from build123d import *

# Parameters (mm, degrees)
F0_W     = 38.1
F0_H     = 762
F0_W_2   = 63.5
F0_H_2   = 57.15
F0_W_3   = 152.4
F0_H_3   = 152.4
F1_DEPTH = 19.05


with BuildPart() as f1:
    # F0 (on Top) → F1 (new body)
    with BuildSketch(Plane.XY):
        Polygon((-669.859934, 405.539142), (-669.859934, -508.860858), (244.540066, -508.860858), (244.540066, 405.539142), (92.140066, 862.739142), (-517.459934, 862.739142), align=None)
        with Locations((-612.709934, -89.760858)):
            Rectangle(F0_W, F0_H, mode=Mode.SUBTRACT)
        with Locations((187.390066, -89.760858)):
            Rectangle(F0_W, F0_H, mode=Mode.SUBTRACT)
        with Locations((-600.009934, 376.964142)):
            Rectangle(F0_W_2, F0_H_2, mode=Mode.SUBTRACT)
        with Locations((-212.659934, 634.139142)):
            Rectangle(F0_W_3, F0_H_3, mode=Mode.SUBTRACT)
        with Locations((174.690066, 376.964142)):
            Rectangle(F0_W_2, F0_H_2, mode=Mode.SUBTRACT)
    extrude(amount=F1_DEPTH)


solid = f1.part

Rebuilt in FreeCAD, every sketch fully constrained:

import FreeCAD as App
import Part
import Sketcher
Q = App.Units.Quantity


def add_polygon(sketch, points):
    """Adds a closed chain of lines whose ends are joined by coincident constraints."""
    first, n = sketch.GeometryCount, len(points)
    for a, b in zip(points, points[1:] + points[:1]):
        sketch.addGeometry(Part.LineSegment(App.Vector(*a, 0), App.Vector(*b, 0)), False)
    for i in range(n):
        sketch.addConstraint(Sketcher.Constraint("Coincident", first + i, 2, first + (i + 1) % n, 1))

doc = App.newDocument("Part")
body = doc.addObject("PartDesign::Body", "Body")

sketch1 = doc.addObject("Sketcher::SketchObject", "Sketch")
body.addObject(sketch1)
sketch1.AttachmentSupport = (doc.XY_Plane, [""])
sketch1.MapMode = "FlatFace"
add_polygon(sketch1, [(-670, 406), (-670, -509), (245, -509), (245, 406), (92, 863), (-517, 863)])
add_polygon(sketch1, [(-594, -471), (-632, -471), (-632, 291), (-594, 291)])
add_polygon(sketch1, [(206, -471), (168, -471), (168, 291), (206, 291)])
add_polygon(sketch1, [(-568, 348), (-632, 348), (-632, 406), (-568, 406)])
add_polygon(sketch1, [(206, 348), (143, 348), (143, 406), (206, 406)])
add_polygon(sketch1, [(-136, 558), (-289, 558), (-289, 710), (-136, 710)])
sketch1.addConstraint([
    Sketcher.Constraint("Vertical", 0),
    Sketcher.Constraint("Horizontal", 1),
    Sketcher.Constraint("Vertical", 2),
    Sketcher.Constraint("Horizontal", 4),
    Sketcher.Constraint("Horizontal", 6),
    Sketcher.Constraint("Vertical", 7),
    Sketcher.Constraint("Horizontal", 8),
    Sketcher.Constraint("Vertical", 9),
    Sketcher.Constraint("Horizontal", 10),
    Sketcher.Constraint("Vertical", 11),
    Sketcher.Constraint("Horizontal", 12),
    Sketcher.Constraint("Vertical", 13),
    Sketcher.Constraint("Horizontal", 14),
    Sketcher.Constraint("Vertical", 15),
    Sketcher.Constraint("Horizontal", 16),
    Sketcher.Constraint("Vertical", 17),
    Sketcher.Constraint("Horizontal", 18),
    Sketcher.Constraint("Vertical", 19),
    Sketcher.Constraint("Horizontal", 20),
    Sketcher.Constraint("Vertical", 21),
    Sketcher.Constraint("Horizontal", 22),
    Sketcher.Constraint("Vertical", 23),
    Sketcher.Constraint("Horizontal", 24),
    Sketcher.Constraint("Vertical", 25),
    Sketcher.Constraint("Horizontal", 2, 2, 5, 2),
    Sketcher.Constraint("Horizontal", 9, 2, 10, 2),
    Sketcher.Constraint("Horizontal", 8, 2, 11, 2),
    Sketcher.Constraint("Horizontal", 5, 2, 15, 2),
    Sketcher.Constraint("Horizontal", 17, 2, 18, 2),
    Sketcher.Constraint("Horizontal", 16, 2, 19, 2),
    Sketcher.Constraint("Vertical", 7, 2, 14, 2),
    Sketcher.Constraint("Vertical", 13, 2, 20, 2),
    Sketcher.Constraint("Equal", 8, 10),
    Sketcher.Constraint("Equal", 16, 18),
    Sketcher.Constraint("Equal", 1, 0),
    Sketcher.Constraint("Equal", 24, 23),
    Sketcher.Constraint("Equal", 3, 5),
    Sketcher.Constraint("DistanceX", 1, 1, 1, 2, Q("36 in")),
    Sketcher.Constraint("DistanceX", 4, 2, 4, 1, Q("24 in")),
    Sketcher.Constraint("DistanceX", 22, 2, 22, 1, Q("6 in")),
    Sketcher.Constraint("DistanceY", 7, 1, 7, 2, Q("30 in")),
    Sketcher.Constraint("DistanceX", 6, 2, 6, 1, Q("1.5 in")),
    Sketcher.Constraint("DistanceX", 14, 2, 14, 1, Q("2.5 in")),
    Sketcher.Constraint("DistanceY", 2, 2, 3, 2, Q("18 in")),
    Sketcher.Constraint("DistanceX", 5, 2, 8, 2, Q("3 in")),
    Sketcher.Constraint("DistanceX", 10, 2, 1, 2, Q("3 in")),
    Sketcher.Constraint("DistanceX", 16, 2, 22, 2, Q("11 in")),
    Sketcher.Constraint("DistanceY", 16, 2, 22, 2, Q("6 in")),
    Sketcher.Constraint("DistanceY", 15, 1, 15, 2, Q("2.25 in")),
    Sketcher.Constraint("DistanceY", 0, 2, 6, 2, Q("1.5 in")),
    Sketcher.Constraint("DistanceY", 0, 2, -1, 1, Q("508.860858 mm")),
    Sketcher.Constraint("DistanceX", 0, 2, -1, 1, Q("669.859934 mm")),
])
pad1 = doc.addObject("PartDesign::Pad", "Pad")
body.addObject(pad1)
pad1.Profile = sketch1
pad1.Length = Q("0.75 in")

doc.recompute()
